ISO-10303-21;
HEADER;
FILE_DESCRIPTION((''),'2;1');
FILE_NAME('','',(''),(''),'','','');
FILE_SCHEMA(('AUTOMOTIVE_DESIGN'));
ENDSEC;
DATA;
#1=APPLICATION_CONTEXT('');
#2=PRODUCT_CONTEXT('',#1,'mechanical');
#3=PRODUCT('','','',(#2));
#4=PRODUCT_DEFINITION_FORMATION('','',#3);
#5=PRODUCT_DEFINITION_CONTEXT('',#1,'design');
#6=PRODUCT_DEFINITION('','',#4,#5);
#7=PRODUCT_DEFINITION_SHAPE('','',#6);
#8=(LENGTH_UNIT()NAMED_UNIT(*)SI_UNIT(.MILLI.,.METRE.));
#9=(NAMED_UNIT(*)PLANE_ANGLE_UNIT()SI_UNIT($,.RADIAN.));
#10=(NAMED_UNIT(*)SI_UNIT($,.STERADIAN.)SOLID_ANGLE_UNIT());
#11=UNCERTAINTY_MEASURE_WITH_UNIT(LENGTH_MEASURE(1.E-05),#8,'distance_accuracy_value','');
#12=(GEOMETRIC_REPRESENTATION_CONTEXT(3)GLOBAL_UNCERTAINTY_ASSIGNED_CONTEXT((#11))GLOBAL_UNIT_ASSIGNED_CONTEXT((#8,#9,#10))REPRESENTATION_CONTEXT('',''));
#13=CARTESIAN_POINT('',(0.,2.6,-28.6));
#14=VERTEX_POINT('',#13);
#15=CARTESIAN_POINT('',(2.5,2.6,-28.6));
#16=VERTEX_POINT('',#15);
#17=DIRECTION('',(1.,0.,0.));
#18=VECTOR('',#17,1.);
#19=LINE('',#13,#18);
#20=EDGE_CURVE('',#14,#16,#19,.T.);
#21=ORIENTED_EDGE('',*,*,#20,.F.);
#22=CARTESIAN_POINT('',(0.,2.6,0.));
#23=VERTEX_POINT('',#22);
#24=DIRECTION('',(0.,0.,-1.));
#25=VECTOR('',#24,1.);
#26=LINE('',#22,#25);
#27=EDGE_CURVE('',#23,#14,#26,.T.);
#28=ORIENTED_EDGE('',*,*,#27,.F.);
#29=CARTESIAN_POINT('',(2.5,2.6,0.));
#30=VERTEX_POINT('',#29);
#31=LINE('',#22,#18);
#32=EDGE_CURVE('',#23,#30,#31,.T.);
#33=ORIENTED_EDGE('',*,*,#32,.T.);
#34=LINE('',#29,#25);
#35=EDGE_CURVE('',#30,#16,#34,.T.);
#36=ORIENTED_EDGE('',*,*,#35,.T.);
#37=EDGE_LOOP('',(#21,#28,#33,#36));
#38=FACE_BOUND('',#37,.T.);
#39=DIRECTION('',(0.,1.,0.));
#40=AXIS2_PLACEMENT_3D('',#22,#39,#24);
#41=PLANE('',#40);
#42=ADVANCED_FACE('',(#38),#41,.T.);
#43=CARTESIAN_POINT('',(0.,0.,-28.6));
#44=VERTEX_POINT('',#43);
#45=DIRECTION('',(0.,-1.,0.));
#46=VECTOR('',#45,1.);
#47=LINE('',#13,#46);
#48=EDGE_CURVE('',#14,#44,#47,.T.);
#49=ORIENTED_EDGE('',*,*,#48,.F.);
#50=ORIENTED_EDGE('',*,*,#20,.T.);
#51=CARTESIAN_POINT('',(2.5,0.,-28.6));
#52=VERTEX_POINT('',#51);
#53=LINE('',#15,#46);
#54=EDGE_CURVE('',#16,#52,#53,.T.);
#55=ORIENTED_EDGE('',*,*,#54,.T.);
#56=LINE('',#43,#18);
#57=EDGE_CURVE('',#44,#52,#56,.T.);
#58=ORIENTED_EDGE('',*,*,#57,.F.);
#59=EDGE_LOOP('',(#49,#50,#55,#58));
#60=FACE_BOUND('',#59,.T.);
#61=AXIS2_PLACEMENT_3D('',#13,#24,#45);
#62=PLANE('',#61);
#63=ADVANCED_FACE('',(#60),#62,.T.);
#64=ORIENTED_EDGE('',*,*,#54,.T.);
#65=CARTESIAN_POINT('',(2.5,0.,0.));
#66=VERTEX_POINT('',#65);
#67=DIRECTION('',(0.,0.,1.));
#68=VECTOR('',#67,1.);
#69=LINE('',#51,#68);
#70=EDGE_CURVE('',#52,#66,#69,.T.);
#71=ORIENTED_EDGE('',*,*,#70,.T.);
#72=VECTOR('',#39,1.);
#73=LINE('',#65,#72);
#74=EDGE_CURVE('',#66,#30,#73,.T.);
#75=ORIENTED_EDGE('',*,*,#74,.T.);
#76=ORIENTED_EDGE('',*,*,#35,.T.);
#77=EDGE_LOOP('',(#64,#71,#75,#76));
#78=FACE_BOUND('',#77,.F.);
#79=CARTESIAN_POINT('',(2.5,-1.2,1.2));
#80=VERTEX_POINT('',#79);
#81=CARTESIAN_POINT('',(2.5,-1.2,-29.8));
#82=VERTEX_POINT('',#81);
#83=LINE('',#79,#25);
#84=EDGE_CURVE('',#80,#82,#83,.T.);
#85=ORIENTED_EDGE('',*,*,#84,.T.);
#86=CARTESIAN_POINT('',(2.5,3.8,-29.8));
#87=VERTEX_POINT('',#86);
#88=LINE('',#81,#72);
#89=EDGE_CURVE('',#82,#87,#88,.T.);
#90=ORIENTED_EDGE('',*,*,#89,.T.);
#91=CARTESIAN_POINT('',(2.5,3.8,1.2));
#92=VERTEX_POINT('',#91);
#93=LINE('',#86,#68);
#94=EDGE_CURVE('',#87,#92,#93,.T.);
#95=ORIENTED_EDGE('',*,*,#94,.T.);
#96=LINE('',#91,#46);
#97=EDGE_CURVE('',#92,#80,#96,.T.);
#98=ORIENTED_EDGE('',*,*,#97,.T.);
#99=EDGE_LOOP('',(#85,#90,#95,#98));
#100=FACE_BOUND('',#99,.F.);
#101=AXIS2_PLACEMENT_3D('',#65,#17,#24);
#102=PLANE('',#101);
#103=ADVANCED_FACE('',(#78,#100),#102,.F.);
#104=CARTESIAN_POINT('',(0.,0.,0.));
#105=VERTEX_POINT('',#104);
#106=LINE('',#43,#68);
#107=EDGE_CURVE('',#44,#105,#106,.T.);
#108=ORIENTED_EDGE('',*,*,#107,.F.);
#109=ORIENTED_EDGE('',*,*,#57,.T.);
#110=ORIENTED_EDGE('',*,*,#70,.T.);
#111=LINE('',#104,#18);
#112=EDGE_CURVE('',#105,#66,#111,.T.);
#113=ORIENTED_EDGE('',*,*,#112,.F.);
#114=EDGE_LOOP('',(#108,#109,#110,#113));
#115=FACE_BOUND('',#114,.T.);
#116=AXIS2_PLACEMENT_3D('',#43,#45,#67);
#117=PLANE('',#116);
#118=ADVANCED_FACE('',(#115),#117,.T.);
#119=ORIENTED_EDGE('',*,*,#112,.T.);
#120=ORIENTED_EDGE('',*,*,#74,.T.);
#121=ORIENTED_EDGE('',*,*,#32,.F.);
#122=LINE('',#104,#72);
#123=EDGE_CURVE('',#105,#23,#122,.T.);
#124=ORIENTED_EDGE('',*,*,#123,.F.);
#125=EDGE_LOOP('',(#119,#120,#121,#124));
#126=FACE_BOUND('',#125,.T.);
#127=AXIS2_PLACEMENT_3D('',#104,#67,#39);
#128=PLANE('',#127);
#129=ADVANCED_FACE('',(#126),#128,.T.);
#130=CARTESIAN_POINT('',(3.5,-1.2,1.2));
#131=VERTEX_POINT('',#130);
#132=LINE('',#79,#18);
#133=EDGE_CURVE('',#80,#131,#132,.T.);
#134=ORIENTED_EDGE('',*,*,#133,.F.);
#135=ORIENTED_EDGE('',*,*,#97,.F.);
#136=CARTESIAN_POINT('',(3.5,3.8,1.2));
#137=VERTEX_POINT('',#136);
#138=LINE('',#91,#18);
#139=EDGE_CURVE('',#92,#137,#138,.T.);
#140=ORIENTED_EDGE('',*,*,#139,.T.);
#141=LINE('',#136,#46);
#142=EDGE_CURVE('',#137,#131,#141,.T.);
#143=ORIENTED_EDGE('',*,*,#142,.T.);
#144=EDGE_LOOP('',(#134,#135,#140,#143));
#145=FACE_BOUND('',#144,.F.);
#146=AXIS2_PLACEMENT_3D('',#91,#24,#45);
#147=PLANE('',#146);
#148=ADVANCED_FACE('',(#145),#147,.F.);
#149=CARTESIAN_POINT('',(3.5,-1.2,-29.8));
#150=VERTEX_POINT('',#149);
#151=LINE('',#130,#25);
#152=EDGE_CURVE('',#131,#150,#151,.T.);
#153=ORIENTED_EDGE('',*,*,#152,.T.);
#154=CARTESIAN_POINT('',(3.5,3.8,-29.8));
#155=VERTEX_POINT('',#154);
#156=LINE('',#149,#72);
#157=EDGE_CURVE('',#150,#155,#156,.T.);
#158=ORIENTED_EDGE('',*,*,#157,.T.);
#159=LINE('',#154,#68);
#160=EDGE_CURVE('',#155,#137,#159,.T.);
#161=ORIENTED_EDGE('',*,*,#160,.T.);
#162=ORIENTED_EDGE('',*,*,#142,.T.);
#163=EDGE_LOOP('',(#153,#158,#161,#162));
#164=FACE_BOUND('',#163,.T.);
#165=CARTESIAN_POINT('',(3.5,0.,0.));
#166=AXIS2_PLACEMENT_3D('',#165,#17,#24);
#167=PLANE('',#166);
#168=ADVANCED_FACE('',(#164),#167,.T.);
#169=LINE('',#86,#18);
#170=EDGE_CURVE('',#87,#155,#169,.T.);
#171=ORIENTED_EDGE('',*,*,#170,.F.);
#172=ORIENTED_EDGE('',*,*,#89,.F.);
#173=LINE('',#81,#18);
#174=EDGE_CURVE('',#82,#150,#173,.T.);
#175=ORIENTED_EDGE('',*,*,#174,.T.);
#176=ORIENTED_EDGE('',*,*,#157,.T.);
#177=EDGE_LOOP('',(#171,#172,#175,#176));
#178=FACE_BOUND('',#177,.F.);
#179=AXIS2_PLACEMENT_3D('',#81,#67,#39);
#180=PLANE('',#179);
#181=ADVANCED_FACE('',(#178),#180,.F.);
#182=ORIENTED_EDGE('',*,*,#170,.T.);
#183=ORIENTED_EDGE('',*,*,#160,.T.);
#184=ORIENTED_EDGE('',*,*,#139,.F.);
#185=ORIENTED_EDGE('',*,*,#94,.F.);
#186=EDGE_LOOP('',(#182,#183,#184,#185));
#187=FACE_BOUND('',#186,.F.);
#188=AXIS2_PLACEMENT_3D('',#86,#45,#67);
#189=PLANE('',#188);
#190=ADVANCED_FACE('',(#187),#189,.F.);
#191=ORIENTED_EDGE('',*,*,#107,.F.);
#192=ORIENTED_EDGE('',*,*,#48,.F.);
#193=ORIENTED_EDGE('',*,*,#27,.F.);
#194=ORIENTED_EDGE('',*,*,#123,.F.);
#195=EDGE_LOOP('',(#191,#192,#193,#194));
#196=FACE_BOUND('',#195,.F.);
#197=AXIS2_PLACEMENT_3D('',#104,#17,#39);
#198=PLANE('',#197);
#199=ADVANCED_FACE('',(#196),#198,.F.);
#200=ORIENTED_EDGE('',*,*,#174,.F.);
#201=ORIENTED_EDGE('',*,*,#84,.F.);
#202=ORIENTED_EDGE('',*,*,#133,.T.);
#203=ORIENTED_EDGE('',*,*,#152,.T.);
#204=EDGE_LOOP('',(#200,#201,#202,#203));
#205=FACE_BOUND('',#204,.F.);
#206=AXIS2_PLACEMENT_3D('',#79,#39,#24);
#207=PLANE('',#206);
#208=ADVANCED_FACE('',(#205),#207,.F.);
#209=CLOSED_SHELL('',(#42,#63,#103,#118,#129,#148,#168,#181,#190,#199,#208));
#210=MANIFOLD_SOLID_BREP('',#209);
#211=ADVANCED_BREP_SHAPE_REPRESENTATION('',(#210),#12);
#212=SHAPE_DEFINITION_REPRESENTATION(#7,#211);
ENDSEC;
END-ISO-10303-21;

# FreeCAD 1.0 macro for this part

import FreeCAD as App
import Part
import Sketcher
Q = App.Units.Quantity

doc = App.newDocument("Part")
body = doc.addObject("PartDesign::Body", "Body")

# Sketch on YZ plane
sketch1 = doc.addObject("Sketcher::SketchObject", "Sketch")
body.addObject(sketch1)
sketch1.AttachmentSupport = (doc.YZ_Plane, [""])
sketch1.MapMode = "FlatFace"
sketch1.addGeometry(Part.LineSegment(App.Vector(2.6, 0, 0), App.Vector(0, 0, 0)), False)
sketch1.addGeometry(Part.LineSegment(App.Vector(0, 0, 0), App.Vector(0, -28.6, 0)), False)
sketch1.addGeometry(Part.LineSegment(App.Vector(0, -28.6, 0), App.Vector(2.6, -28.6, 0)), False)
sketch1.addGeometry(Part.LineSegment(App.Vector(2.6, -28.6, 0), App.Vector(2.6, 0, 0)), False)
sketch1.addConstraint(Sketcher.Constraint("Coincident", 0, 2, 1, 1))
sketch1.addConstraint(Sketcher.Constraint("Coincident", 1, 2, 2, 1))
sketch1.addConstraint(Sketcher.Constraint("Coincident", 2, 2, 3, 1))
sketch1.addConstraint(Sketcher.Constraint("Coincident", 3, 2, 0, 1))
sketch1.addConstraint(Sketcher.Constraint("Horizontal", 0))
sketch1.addConstraint(Sketcher.Constraint("Vertical", 1))
sketch1.addConstraint(Sketcher.Constraint("Horizontal", 2))
sketch1.addConstraint(Sketcher.Constraint("Vertical", 3))
sketch1.addConstraint(Sketcher.Constraint("Coincident", 0, 2, -1, 1))
sketch1.addConstraint(Sketcher.Constraint("DistanceX", 0, 2, 0, 1, Q("2.6 mm")))
sketch1.addConstraint(Sketcher.Constraint("DistanceY", 1, 2, 1, 1, Q("28.6 mm")))
pad1 = doc.addObject("PartDesign::Pad", "Pad")
body.addObject(pad1)
pad1.Profile = sketch1
pad1.Length = 2.5

# Sketch on YZ plane
sketch2 = doc.addObject("Sketcher::SketchObject", "Sketch001")
body.addObject(sketch2)
sketch2.AttachmentSupport = (doc.YZ_Plane, [""])
sketch2.MapMode = "FlatFace"
sketch2.AttachmentOffset = App.Placement(App.Vector(0, 0, 2.5), App.Rotation())
sketch2.addGeometry(Part.LineSegment(App.Vector(3.8, 1.2, 0), App.Vector(-1.2, 1.2, 0)), False)
sketch2.addGeometry(Part.LineSegment(App.Vector(-1.2, 1.2, 0), App.Vector(-1.2, -29.8, 0)), False)
sketch2.addGeometry(Part.LineSegment(App.Vector(-1.2, -29.8, 0), App.Vector(3.8, -29.8, 0)), False)
sketch2.addGeometry(Part.LineSegment(App.Vector(3.8, -29.8, 0), App.Vector(3.8, 1.2, 0)), False)
sketch2.addConstraint(Sketcher.Constraint("Coincident", 0, 2, 1, 1))
sketch2.addConstraint(Sketcher.Constraint("Coincident", 1, 2, 2, 1))
sketch2.addConstraint(Sketcher.Constraint("Coincident", 2, 2, 3, 1))
sketch2.addConstraint(Sketcher.Constraint("Coincident", 3, 2, 0, 1))
sketch2.addConstraint(Sketcher.Constraint("Horizontal", 0))
sketch2.addConstraint(Sketcher.Constraint("Vertical", 1))
sketch2.addConstraint(Sketcher.Constraint("Horizontal", 2))
sketch2.addConstraint(Sketcher.Constraint("Vertical", 3))
sketch2.addConstraint(Sketcher.Constraint("DistanceX", 0, 2, 0, 1, Q("5 mm")))
sketch2.addConstraint(Sketcher.Constraint("DistanceY", 1, 2, 1, 1, Q("31 mm")))
sketch2.addConstraint(Sketcher.Constraint("DistanceX", 0, 2, -1, 1, Q("1.2 mm")))
sketch2.addConstraint(Sketcher.Constraint("DistanceY", -1, 1, 0, 2, Q("1.2 mm")))
pad2 = doc.addObject("PartDesign::Pad", "Pad001")
body.addObject(pad2)
pad2.Profile = sketch2
pad2.Length = 1

doc.recompute()
